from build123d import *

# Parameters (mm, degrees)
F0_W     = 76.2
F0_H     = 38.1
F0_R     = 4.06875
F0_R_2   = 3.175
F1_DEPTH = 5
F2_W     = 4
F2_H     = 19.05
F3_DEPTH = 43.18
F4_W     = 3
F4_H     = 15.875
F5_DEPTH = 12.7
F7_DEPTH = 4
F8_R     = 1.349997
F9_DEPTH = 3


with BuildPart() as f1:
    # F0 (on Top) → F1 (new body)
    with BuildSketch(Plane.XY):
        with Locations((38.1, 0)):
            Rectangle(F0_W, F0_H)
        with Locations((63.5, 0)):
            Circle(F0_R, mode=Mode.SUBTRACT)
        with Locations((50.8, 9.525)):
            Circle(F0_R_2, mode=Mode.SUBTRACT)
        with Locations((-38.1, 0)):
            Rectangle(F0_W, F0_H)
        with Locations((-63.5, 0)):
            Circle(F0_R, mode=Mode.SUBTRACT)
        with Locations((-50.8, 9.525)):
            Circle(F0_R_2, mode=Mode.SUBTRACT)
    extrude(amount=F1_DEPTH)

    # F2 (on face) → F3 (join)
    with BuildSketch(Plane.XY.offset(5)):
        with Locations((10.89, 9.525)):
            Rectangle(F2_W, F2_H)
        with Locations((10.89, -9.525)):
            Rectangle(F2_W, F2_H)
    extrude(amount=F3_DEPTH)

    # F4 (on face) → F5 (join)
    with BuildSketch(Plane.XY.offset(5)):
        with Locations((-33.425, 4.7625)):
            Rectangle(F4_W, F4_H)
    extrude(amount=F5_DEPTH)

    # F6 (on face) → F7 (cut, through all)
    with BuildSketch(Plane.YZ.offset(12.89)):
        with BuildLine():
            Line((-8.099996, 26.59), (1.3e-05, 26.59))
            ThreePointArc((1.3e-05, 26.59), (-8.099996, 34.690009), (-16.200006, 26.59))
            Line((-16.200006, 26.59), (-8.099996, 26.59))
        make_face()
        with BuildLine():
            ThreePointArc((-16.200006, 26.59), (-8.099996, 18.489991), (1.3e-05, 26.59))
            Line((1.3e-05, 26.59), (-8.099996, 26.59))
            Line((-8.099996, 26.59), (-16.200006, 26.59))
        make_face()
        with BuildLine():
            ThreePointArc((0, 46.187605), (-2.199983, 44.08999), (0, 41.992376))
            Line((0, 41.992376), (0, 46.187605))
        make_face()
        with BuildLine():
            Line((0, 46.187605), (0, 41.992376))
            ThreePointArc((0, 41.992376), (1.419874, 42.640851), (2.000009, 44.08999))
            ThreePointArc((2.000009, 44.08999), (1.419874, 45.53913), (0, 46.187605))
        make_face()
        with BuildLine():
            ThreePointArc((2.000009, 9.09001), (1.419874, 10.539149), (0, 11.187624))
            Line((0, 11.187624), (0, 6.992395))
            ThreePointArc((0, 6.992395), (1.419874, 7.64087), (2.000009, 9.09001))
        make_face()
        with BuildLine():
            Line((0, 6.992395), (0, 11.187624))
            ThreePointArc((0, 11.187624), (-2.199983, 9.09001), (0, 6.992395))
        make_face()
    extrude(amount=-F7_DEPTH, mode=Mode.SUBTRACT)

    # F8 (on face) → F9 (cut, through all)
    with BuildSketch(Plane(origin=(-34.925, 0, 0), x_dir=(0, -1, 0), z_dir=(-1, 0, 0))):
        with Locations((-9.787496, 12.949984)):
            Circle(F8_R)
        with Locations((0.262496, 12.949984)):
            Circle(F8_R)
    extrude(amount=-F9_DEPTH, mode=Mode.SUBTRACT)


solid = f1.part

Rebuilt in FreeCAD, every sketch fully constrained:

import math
import FreeCAD as App
import Part
import Sketcher
from FreeCAD import Vector
Q = App.Units.Quantity


def add_polygon(sketch, points):
    """Adds a closed chain of lines whose ends are joined by coincident constraints."""
    first, n = sketch.GeometryCount, len(points)
    for a, b in zip(points, points[1:] + points[:1]):
        sketch.addGeometry(Part.LineSegment(App.Vector(*a, 0), App.Vector(*b, 0)), False)
    for i in range(n):
        sketch.addConstraint(Sketcher.Constraint("Coincident", first + i, 2, first + (i + 1) % n, 1))

doc = App.newDocument("Part")
body = doc.addObject("PartDesign::Body", "Body")

sketch1 = body.newObject("Sketcher::SketchObject", "Sketch")
sketch1.AttachmentSupport = (doc.getObject("XY_Plane"), [""])
sketch1.MapMode = "FlatFace"
add_polygon(sketch1, [(76.2, -19.05), (76.2, 19.05), (-76.2, 19.05), (-76.2, -19.05)])
sketch1.addGeometry(Part.Circle(Vector(-63.5, 0, 0), Vector(0, 0, 1), 4.06875), False)
sketch1.addGeometry(Part.Circle(Vector(63.5, 0, 0), Vector(0, 0, 1), 4.06875), False)
sketch1.addGeometry(Part.Circle(Vector(-50.8, 9.525, 0), Vector(0, 0, 1), 3.175), False)
sketch1.addGeometry(Part.Circle(Vector(50.8, 9.525, 0), Vector(0, 0, 1), 3.175), False)
sketch1.addConstraint([
    Sketcher.Constraint("Vertical", 0),
    Sketcher.Constraint("Horizontal", 1),
    Sketcher.Constraint("Vertical", 2),
    Sketcher.Constraint("Horizontal", 3),
    Sketcher.Constraint("Equal", 4, 5),
    Sketcher.Constraint("Equal", 6, 7),
    Sketcher.Constraint("Symmetric", 4, 3, 5, 3, -1, 1),
    Sketcher.Constraint("Symmetric", 0, 2, 2, 2, -1, 1),
    Sketcher.Constraint("Symmetric", 6, 3, 7, 3, -2),
    Sketcher.Constraint("PointOnObject", 4, 3, -1),
    Sketcher.Constraint("Diameter", 6, Q("0.25 in")),
    Sketcher.Constraint("DistanceX", 1, 2, 1, 1, Q("6 in")),
    Sketcher.Constraint("DistanceY", 0, 1, 0, 2, Q("1.5 in")),
    Sketcher.Constraint("DistanceX", 6, 3, -1, 1, Q("2 in")),
    Sketcher.Constraint("DistanceX", 4, 3, 5, 3, Q("5 in")),
    Sketcher.Constraint("Diameter", 4, 8.1375),
    Sketcher.Constraint("DistanceY", -1, 1, 6, 3, Q("0.375 in")),
])
pad1 = body.newObject("PartDesign::Pad", "Pad")
pad1.Profile = sketch1
pad1.Length = 5

sketch2 = body.newObject("Sketcher::SketchObject", "Sketch001")
sketch2.AttachmentSupport = (doc.getObject("XY_Plane"), [""])
sketch2.MapMode = "FlatFace"
sketch2.AttachmentOffset = App.Placement(Vector(0, 0, 5), App.Rotation())
add_polygon(sketch2, [(8.89, 19.05), (8.89, -19.05), (12.89, -19.05), (12.89, 19.05)])
sketch2.addConstraint([
    Sketcher.Constraint("Vertical", 0),
    Sketcher.Constraint("Horizontal", 1),
    Sketcher.Constraint("Vertical", 2),
    Sketcher.Constraint("Horizontal", 3),
    Sketcher.Constraint("DistanceY", 0, 2, 0, 1, Q("1.5 in")),
    Sketcher.Constraint("DistanceX", -1, 1, 0, 2, Q("0.35 in")),
    Sketcher.Constraint("DistanceY", 0, 2, -1, 1, Q("0.75 in")),
    Sketcher.Constraint("DistanceX", 1, 1, 1, 2, 4.0),
])
pad2 = body.newObject("PartDesign::Pad", "Pad001")
pad2.Profile = sketch2
pad2.Length = Q("1.7 in")

sketch3 = body.newObject("Sketcher::SketchObject", "Sketch002")
sketch3.AttachmentSupport = (doc.getObject("XY_Plane"), [""])
sketch3.MapMode = "FlatFace"
sketch3.AttachmentOffset = App.Placement(Vector(0, 0, 5), App.Rotation())
add_polygon(sketch3, [(-34.925, 12.7), (-34.925, -3.175), (-31.925, -3.175), (-31.925, 12.7)])
sketch3.addConstraint([
    Sketcher.Constraint("Vertical", 0),
    Sketcher.Constraint("Horizontal", 1),
    Sketcher.Constraint("Vertical", 2),
    Sketcher.Constraint("Horizontal", 3),
    Sketcher.Constraint("DistanceY", -1, 1, 2, 2, Q("0.5 in")),
    Sketcher.Constraint("DistanceY", 0, 2, 0, 1, Q("0.625 in")),
    Sketcher.Constraint("DistanceX", 0, 2, -1, 1, Q("1.375 in")),
    Sketcher.Constraint("DistanceX", 1, 1, 1, 2, 3.0),
])
pad3 = body.newObject("PartDesign::Pad", "Pad002")
pad3.Profile = sketch3
pad3.Length = Q("0.5 in")

sketch4 = body.newObject("Sketcher::SketchObject", "Sketch003")
sketch4.AttachmentSupport = (doc.getObject("YZ_Plane"), [""])
sketch4.MapMode = "FlatFace"
sketch4.AttachmentOffset = App.Placement(Vector(0, 0, 12.89), App.Rotation())
sketch4.addGeometry([
    Part.ArcOfCircle(Part.Circle(Vector(-8.099996, 26.59, 0), Vector(0, 0, 1), 8.10001), math.radians(0.000004), math.radians(179.999996)),
    Part.ArcOfCircle(Part.Circle(Vector(-8.099996, 26.59, 0), Vector(0, 0, 1), 8.10001), math.radians(-179.999996), math.radians(-0.000004)),
    Part.ArcOfCircle(Part.Circle(Vector(-0.099987, 44.08999, 0), Vector(0, 0, 1), 2.099996), math.radians(87.270952), math.radians(272.729048)),
    Part.ArcOfCircle(Part.Circle(Vector(-0.099988, 44.089991, 0), Vector(0, 0, 1), 2.099997), math.radians(-87.270931), math.radians(-0.000025)),
    Part.ArcOfCircle(Part.Circle(Vector(-0.099988, 44.08999, 0), Vector(0, 0, 1), 2.099997), math.radians(-0.000003), math.radians(87.270931)),
    Part.ArcOfCircle(Part.Circle(Vector(-0.099988, 9.090009, 0), Vector(0, 0, 1), 2.099997), math.radians(0.000025), math.radians(87.270931)),
    Part.ArcOfCircle(Part.Circle(Vector(-0.099987, 9.09001, 0), Vector(0, 0, 1), 2.099996), math.radians(87.270952), math.radians(272.729048)),
    Part.ArcOfCircle(Part.Circle(Vector(-0.099988, 9.09001, 0), Vector(0, 0, 1), 2.099997), math.radians(-87.270931), math.radians(0.000003)),
], False)
sketch4.addConstraint([
    Sketcher.Constraint("Tangent", 0, 1, 1, 2),
    Sketcher.Constraint("Coincident", 1, 1, 0, 2),
    Sketcher.Constraint("Tangent", 2, 2, 3, 1),
    Sketcher.Constraint("Tangent", 3, 2, 4, 1),
    Sketcher.Constraint("Tangent", 4, 2, 2, 1),
    Sketcher.Constraint("Tangent", 5, 2, 6, 1),
    Sketcher.Constraint("Tangent", 6, 2, 7, 1),
    Sketcher.Constraint("Tangent", 7, 2, 5, 1),
    Sketcher.Constraint("Equal", 4, 5),
    Sketcher.Constraint("PointOnObject", 2, 2, -2),
    Sketcher.Constraint("PointOnObject", 4, 2, -2),
    Sketcher.Constraint("PointOnObject", 5, 2, -2),
    Sketcher.Constraint("PointOnObject", 6, 2, -2),
    Sketcher.Constraint("Horizontal", 1, 3, 0, 1),
    Sketcher.Constraint("Horizontal", 0, 1, 1, 1),
    Sketcher.Constraint("Horizontal", 4, 3, 3, 2),
    Sketcher.Constraint("Horizontal", 6, 3, 7, 2),
    Sketcher.Constraint("Vertical", 4, 3, 5, 3),
    Sketcher.Constraint("Radius", 0, 8.10001),
    Sketcher.Constraint("Radius", 2, 2.099996),
    Sketcher.Constraint("DistanceY", -1, 1, 0, 3, 26.59),
    Sketcher.Constraint("DistanceX", 7, 3, 0, 1, 0.100001),
    Sketcher.Constraint("DistanceY", -1, 1, 2, 3, 44.08999),
    Sketcher.Constraint("DistanceY", -1, 1, 5, 3, 9.090009),
    Sketcher.Constraint("DistanceX", -1, 1, 3, 2, 2.000009),
])
pocket1 = body.newObject("PartDesign::Pocket", "Pocket")
pocket1.Profile = sketch4
pocket1.Length = 4

sketch5 = body.newObject("Sketcher::SketchObject", "Sketch004")
sketch5.AttachmentSupport = (doc.getObject("YZ_Plane"), [""])
sketch5.MapMode = "FlatFace"
sketch5.AttachmentOffset = App.Placement(Vector(0, 0, -1.375 * 25.4), App.Rotation())
sketch5.addGeometry([
    Part.Circle(Vector(9.787496, 12.949984, 0), Vector(0, 0, 1), 1.349997),
    Part.Circle(Vector(-0.262496, 12.949984, 0), Vector(0, 0, 1), 1.349997),
], False)
sketch5.addConstraint([
    Sketcher.Constraint("Equal", 0, 1),
    Sketcher.Constraint("Horizontal", 0, 3, 1, 3),
    Sketcher.Constraint("Diameter", 0, 2.699994),
    Sketcher.Constraint("DistanceX", -1, 1, 0, 3, 9.787496),
    Sketcher.Constraint("DistanceY", -1, 1, 0, 3, 12.949984),
    Sketcher.Constraint("DistanceX", 1, 3, -1, 1, 0.262496),
])
pocket2 = body.newObject("PartDesign::Pocket", "Pocket001")
pocket2.Profile = sketch5
pocket2.Length = 3
pocket2.Reversed = True

doc.recompute()
